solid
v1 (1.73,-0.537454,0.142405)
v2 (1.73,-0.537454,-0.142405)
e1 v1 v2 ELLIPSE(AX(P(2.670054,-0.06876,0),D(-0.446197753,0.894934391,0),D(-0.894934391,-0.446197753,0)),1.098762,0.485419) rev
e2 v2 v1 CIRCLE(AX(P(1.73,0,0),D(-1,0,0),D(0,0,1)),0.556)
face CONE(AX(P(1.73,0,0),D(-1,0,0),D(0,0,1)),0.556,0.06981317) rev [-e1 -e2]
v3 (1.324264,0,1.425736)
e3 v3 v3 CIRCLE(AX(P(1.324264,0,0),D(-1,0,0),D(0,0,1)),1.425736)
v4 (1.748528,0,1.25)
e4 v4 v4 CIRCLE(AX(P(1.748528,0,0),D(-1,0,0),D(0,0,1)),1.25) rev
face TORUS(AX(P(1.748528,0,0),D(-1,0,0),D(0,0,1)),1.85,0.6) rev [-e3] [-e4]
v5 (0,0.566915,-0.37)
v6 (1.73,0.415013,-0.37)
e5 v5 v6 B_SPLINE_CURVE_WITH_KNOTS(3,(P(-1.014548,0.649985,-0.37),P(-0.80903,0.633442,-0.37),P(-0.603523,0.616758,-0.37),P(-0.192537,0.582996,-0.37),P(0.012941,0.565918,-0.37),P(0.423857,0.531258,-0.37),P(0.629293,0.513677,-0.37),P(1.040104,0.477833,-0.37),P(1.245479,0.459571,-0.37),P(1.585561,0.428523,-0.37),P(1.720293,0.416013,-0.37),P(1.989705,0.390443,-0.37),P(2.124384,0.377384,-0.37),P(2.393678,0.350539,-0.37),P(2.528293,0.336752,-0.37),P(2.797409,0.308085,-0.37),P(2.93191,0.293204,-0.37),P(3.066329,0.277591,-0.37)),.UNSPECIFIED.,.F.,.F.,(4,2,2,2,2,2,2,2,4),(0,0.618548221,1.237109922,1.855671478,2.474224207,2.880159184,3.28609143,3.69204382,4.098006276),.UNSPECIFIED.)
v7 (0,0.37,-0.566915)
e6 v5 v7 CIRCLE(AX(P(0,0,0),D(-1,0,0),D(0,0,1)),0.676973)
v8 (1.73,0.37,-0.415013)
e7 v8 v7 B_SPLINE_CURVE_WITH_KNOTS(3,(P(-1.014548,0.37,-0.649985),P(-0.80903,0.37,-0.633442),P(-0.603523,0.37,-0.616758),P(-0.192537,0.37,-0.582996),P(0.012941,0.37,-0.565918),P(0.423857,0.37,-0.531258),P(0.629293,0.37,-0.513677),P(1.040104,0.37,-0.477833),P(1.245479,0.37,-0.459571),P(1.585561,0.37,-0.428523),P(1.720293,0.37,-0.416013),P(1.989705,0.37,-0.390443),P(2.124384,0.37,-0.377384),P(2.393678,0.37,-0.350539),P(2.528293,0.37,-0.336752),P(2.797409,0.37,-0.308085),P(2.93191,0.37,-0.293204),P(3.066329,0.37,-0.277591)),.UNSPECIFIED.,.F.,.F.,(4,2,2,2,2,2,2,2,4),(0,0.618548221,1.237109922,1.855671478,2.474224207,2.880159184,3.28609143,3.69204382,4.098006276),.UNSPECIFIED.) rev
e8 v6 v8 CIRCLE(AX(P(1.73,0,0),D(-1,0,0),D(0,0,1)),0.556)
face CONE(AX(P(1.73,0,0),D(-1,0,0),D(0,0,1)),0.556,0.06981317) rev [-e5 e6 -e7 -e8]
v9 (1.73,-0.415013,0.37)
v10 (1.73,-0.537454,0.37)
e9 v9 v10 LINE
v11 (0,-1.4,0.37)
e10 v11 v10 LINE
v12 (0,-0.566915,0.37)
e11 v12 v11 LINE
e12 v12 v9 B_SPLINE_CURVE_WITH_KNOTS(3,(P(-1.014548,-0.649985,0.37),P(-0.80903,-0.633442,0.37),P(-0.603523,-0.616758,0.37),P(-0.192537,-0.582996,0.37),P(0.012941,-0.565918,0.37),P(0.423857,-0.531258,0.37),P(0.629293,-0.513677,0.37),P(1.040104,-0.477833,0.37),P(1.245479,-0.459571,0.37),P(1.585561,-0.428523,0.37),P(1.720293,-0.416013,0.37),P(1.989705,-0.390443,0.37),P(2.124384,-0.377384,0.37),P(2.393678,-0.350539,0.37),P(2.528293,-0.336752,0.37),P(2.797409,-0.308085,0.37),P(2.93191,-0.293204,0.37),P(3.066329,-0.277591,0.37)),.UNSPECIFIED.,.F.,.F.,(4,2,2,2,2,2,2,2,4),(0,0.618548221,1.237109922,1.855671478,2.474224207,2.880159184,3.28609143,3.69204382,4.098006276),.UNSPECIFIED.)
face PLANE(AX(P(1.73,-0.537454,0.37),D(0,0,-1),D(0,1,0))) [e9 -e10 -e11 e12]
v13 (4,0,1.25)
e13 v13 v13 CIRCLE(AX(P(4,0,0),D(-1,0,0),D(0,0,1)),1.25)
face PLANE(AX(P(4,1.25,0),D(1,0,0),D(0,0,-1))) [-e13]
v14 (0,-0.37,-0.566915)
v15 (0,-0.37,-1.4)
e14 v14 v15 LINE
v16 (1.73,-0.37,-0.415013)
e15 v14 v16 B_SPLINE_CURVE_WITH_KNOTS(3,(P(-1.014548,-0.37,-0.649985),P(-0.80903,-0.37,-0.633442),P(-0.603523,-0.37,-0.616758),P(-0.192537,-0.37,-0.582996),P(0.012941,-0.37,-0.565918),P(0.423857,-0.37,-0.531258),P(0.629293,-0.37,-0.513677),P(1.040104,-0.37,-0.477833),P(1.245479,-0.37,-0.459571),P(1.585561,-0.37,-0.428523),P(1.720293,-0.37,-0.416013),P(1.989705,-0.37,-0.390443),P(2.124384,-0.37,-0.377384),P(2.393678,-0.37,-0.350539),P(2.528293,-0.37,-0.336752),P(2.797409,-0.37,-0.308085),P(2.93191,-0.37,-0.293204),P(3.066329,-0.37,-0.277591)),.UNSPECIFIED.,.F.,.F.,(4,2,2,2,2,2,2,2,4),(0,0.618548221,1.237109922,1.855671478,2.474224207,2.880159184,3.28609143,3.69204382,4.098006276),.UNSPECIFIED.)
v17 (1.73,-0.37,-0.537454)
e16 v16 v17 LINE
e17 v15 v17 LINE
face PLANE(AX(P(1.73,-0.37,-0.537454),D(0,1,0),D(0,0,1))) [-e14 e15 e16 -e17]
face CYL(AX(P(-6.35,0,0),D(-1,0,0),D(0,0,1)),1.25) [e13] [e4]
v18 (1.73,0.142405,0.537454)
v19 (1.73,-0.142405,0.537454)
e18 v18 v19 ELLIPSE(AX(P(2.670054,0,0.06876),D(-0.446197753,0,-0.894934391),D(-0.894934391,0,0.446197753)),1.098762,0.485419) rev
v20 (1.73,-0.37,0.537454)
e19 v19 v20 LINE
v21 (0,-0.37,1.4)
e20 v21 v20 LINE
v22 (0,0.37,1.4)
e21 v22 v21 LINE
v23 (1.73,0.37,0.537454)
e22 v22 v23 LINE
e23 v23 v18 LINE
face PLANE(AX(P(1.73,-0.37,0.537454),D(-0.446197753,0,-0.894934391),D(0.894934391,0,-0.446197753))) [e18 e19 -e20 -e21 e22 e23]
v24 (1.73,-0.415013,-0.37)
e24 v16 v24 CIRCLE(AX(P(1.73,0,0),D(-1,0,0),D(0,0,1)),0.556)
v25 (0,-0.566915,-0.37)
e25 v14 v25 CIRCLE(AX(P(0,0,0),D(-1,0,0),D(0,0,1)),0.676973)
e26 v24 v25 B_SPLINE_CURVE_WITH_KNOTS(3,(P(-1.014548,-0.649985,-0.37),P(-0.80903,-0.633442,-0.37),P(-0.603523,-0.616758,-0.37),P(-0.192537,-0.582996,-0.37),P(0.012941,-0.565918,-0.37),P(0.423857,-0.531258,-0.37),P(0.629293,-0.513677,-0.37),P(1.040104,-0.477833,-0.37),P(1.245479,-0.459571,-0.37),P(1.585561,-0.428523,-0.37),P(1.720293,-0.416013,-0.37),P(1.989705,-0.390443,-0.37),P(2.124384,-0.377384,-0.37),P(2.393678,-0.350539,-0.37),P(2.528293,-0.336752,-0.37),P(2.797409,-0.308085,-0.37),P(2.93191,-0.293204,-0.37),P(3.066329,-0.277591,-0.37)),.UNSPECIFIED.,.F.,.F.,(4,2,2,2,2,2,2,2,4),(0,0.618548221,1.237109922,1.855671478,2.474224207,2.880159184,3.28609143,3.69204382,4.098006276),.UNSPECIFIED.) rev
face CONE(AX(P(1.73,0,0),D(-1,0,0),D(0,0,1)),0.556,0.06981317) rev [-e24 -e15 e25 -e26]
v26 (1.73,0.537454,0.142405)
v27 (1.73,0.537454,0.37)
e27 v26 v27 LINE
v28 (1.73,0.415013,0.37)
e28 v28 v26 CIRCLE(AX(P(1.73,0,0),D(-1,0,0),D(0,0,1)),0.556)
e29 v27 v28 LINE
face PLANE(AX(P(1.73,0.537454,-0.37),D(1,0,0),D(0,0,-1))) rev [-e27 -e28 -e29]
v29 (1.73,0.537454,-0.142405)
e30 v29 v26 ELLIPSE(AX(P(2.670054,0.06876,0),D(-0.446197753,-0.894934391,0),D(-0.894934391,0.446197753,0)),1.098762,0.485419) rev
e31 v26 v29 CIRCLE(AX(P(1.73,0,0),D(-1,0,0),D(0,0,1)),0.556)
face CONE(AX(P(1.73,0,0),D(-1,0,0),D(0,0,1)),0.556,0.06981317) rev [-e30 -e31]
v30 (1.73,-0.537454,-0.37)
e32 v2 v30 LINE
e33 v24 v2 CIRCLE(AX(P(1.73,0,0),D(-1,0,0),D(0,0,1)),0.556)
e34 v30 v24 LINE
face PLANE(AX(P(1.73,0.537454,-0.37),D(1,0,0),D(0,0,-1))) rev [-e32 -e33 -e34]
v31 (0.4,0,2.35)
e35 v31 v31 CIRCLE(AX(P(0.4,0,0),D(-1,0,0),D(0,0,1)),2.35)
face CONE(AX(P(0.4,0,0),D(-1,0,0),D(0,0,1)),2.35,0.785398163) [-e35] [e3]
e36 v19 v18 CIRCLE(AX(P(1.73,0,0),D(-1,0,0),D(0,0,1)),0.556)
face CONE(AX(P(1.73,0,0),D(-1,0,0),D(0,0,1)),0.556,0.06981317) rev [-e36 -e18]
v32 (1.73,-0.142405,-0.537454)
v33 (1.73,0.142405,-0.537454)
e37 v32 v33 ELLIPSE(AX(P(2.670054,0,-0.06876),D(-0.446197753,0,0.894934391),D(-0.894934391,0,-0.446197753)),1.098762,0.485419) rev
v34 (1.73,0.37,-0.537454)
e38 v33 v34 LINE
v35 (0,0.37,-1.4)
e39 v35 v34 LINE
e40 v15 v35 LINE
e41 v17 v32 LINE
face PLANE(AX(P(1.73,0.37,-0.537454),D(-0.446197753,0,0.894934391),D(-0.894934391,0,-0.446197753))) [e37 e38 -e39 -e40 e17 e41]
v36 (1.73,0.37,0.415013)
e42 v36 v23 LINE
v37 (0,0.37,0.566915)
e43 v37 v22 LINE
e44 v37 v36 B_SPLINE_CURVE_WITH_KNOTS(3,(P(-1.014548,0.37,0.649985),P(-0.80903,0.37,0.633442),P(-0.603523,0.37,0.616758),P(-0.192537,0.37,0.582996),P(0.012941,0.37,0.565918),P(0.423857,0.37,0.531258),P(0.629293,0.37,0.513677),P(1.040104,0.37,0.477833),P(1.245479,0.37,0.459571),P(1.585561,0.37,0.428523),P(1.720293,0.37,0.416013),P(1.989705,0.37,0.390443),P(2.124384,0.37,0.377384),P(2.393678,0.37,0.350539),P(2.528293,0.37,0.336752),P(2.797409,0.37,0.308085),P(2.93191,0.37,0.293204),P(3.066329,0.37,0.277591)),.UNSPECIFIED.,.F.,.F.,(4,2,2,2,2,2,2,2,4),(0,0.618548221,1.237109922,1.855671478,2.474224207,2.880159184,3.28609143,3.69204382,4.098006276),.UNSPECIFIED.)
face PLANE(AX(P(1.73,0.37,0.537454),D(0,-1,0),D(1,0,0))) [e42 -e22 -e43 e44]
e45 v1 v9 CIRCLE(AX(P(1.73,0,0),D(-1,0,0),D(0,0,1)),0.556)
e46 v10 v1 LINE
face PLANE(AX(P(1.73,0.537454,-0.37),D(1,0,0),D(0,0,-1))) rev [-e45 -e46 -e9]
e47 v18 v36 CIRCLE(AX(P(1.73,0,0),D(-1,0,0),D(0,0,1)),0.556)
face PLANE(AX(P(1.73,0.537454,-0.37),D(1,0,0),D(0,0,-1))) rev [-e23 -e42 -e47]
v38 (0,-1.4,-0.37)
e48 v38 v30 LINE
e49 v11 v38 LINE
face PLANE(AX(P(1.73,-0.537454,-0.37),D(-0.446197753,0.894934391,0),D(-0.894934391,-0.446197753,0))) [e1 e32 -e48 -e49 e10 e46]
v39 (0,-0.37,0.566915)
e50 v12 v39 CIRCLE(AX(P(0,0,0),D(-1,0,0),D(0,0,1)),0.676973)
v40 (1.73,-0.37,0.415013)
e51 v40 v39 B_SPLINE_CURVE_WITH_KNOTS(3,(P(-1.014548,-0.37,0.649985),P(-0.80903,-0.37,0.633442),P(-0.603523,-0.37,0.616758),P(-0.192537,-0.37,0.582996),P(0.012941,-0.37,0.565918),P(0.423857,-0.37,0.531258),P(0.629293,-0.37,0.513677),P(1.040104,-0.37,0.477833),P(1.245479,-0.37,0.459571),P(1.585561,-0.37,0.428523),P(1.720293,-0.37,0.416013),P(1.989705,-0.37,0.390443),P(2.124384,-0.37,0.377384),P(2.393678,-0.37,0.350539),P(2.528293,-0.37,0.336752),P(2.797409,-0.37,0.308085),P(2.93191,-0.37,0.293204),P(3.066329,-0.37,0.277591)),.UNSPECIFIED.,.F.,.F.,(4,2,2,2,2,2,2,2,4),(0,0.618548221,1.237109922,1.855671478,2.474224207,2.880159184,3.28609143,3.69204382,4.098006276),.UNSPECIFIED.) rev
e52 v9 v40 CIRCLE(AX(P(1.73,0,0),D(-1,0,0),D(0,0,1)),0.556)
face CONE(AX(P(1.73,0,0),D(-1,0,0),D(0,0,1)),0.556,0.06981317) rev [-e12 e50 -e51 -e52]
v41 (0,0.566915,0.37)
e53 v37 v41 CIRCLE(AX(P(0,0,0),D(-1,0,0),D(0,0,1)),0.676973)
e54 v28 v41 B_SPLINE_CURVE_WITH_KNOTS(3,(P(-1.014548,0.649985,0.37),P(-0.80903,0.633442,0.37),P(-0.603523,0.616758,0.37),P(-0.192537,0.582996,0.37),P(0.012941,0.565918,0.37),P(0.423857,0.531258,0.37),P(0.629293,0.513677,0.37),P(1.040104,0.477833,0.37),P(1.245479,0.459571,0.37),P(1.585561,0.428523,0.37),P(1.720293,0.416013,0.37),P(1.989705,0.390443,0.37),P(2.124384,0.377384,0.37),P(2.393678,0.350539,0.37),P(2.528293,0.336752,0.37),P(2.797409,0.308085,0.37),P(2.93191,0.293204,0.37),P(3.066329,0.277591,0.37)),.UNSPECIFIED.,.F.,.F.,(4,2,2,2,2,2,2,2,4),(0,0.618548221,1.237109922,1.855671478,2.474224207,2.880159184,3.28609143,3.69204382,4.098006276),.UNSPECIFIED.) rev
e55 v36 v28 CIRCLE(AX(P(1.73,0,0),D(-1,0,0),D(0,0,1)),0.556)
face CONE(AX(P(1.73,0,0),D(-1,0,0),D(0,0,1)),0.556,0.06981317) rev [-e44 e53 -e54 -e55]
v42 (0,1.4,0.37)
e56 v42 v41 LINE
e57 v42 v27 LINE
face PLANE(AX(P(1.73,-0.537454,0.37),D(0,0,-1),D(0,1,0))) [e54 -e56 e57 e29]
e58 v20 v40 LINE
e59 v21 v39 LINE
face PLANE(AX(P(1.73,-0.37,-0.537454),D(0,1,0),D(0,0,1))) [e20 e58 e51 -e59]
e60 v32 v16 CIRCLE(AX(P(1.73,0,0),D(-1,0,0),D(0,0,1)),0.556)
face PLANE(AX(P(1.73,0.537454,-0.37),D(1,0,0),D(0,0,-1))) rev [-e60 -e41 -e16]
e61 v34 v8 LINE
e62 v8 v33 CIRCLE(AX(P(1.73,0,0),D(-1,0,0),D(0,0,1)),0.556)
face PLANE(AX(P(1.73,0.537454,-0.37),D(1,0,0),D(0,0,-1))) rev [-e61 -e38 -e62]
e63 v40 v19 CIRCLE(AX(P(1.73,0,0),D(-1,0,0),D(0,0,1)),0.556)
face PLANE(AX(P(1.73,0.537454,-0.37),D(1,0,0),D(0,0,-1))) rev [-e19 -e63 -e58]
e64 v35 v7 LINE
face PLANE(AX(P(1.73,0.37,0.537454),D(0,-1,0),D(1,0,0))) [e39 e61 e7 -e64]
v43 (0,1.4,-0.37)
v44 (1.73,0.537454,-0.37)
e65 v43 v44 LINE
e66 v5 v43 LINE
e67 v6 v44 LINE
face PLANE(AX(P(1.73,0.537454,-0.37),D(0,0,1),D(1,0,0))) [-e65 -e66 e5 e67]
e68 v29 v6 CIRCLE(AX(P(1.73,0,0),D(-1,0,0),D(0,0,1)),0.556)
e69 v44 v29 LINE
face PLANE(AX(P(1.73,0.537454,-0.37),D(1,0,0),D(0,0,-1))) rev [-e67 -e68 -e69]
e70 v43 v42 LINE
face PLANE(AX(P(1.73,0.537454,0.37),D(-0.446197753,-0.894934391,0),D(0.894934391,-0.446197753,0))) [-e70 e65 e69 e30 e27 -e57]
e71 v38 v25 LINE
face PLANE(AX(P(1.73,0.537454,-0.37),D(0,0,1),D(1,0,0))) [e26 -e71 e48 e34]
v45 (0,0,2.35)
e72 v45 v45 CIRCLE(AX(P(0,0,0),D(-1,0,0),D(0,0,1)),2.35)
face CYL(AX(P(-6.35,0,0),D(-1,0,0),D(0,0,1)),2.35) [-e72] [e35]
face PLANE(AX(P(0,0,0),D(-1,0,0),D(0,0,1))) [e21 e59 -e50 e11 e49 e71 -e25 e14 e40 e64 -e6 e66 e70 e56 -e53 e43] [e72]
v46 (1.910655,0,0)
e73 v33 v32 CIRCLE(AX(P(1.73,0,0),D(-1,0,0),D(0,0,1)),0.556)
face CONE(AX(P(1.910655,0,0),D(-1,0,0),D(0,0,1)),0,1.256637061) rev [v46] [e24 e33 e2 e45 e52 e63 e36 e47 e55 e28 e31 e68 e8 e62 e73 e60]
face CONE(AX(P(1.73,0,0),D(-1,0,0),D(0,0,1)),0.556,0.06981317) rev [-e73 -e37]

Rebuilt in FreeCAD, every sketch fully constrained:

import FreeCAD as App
import Part
import Sketcher
Q = App.Units.Quantity


def edges_at(feature, points):
    """Names of the edges that pass closest to the given points."""
    edges = feature.Shape.Edges
    near = lambda p: min(range(len(edges)), key=lambda i: edges[i].distToShape(Part.Vertex(*p))[0])
    return sorted({f"Edge{near(p) + 1}" for p in points})

doc = App.newDocument("Part")
params = doc.addObject("Spreadsheet::Sheet", "Params")
for row, (alias, value) in enumerate([
    ("sketch1_width", "4 mm"),
    ("sketch1_width2", "2.5 mm"),
    ("sketch1_width3", "0.4 mm"),
    ("sketch1_height", "2.35 mm"),
    ("revolution_angle", "360 deg"),
    ("fillet_radius", "0.6 mm"),
    ("sketch2_width", "2.8 mm"),
    ("sketch2_height", "0.74 mm"),
    ("sketch3_height", "0.74 mm"),
    ("groove_angle", "360 deg"),
], start=1):
    params.set(f"A{row}", alias)
    params.set(f"B{row}", "=" + value)
    params.setAlias(f"B{row}", alias)

body = doc.addObject("PartDesign::Body", "Body")

sketch1 = body.newObject("Sketcher::SketchObject", "Sketch")
sketch1.AttachmentSupport = (doc.getObject("XY_Plane"), [""])
sketch1.MapMode = "FlatFace"
sketch1.addGeometry([
    Part.LineSegment(App.Vector(0, 2.35, 0), App.Vector(0, 0, 0)),
    Part.LineSegment(App.Vector(0, 0, 0), App.Vector(4, 0, 0)),
    Part.LineSegment(App.Vector(4, 0, 0), App.Vector(4, 1.25, 0)),
    Part.LineSegment(App.Vector(4, 1.25, 0), App.Vector(1.5, 1.25, 0)),
    Part.LineSegment(App.Vector(1.5, 1.25, 0), App.Vector(0.4, 2.35, 0)),
    Part.LineSegment(App.Vector(0.4, 2.35, 0), App.Vector(0, 2.35, 0)),
], False)
sketch1.addConstraint([
    Sketcher.Constraint("Coincident", 0, 2, 1, 1),
    Sketcher.Constraint("Coincident", 1, 2, 2, 1),
    Sketcher.Constraint("Coincident", 2, 2, 3, 1),
    Sketcher.Constraint("Coincident", 3, 2, 4, 1),
    Sketcher.Constraint("Coincident", 4, 2, 5, 1),
    Sketcher.Constraint("Coincident", 5, 2, 0, 1),
    Sketcher.Constraint("Vertical", 0),
    Sketcher.Constraint("Horizontal", 1),
    Sketcher.Constraint("Vertical", 2),
    Sketcher.Constraint("Horizontal", 3),
    Sketcher.Constraint("Horizontal", 5),
    Sketcher.Constraint("Coincident", 0, 2, -1, 1),
    Sketcher.Constraint("DistanceX", 1, 1, 1, 2, Q("4 mm")),
    Sketcher.Constraint("Angle", 4, Q("135 deg")),
    Sketcher.Constraint("DistanceX", 3, 2, 3, 1, Q("2.5 mm")),
    Sketcher.Constraint("DistanceX", 5, 2, 5, 1, Q("0.4 mm")),
    Sketcher.Constraint("DistanceY", 0, 2, 0, 1, Q("2.35 mm")),
])
sketch1.setExpression("Constraints[12]", "Params.sketch1_width")
sketch1.setExpression("Constraints[14]", "Params.sketch1_width2")
sketch1.setExpression("Constraints[15]", "Params.sketch1_width3")
sketch1.setExpression("Constraints[16]", "Params.sketch1_height")
revolution = body.newObject("PartDesign::Revolution", "Revolution")
revolution.Profile = sketch1
revolution.ReferenceAxis = (sketch1, ["H_Axis"])
revolution.setExpression("Angle", "Params.revolution_angle")
doc.recompute()

fillet = body.newObject("PartDesign::Fillet", "Fillet")
fillet.Base = (revolution, edges_at(revolution, [(1.5, 0, -1.25)]))
fillet.setExpression("Radius", "Params.fillet_radius")

sketch2 = body.newObject("Sketcher::SketchObject", "Sketch001")
sketch2.AttachmentSupport = (doc.getObject("YZ_Plane"), [""])
sketch2.MapMode = "FlatFace"
sketch2.addGeometry([
    Part.LineSegment(App.Vector(1.4, 0.4, 0), App.Vector(1.4, -0.4, 0)),
    Part.LineSegment(App.Vector(1.4, -0.4, 0), App.Vector(-1.4, -0.4, 0)),
    Part.LineSegment(App.Vector(-1.4, -0.4, 0), App.Vector(-1.4, 0.4, 0)),
    Part.LineSegment(App.Vector(-1.4, 0.4, 0), App.Vector(1.4, 0.4, 0)),
], False)
sketch2.addConstraint([
    Sketcher.Constraint("Coincident", 0, 2, 1, 1),
    Sketcher.Constraint("Coincident", 1, 2, 2, 1),
    Sketcher.Constraint("Coincident", 2, 2, 3, 1),
    Sketcher.Constraint("Coincident", 3, 2, 0, 1),
    Sketcher.Constraint("Vertical", 0),
    Sketcher.Constraint("Horizontal", 1),
    Sketcher.Constraint("Vertical", 2),
    Sketcher.Constraint("Horizontal", 3),
    Sketcher.Constraint("Symmetric", 0, 2, 2, 2, -1, 1),
    Sketcher.Constraint("DistanceX", 1, 2, 1, 1, Q("2.8 mm")),
    Sketcher.Constraint("DistanceY", 0, 2, 0, 1, Q("0.74 mm")),
])
sketch2.setExpression("Constraints[9]", "Params.sketch2_width")
sketch2.setExpression("Constraints[10]", "Params.sketch2_height")

sketch3 = body.newObject("Sketcher::SketchObject", "Sketch002")
sketch3.AttachmentSupport = (doc.getObject("YZ_Plane"), [""])
sketch3.MapMode = "FlatFace"
sketch3.AttachmentOffset = App.Placement(App.Vector(0, 0, 1.73), App.Rotation())
sketch3.addGeometry([
    Part.LineSegment(App.Vector(0.5, 0.4, 0), App.Vector(0.5, -0.4, 0)),
    Part.LineSegment(App.Vector(0.5, -0.4, 0), App.Vector(-0.5, -0.4, 0)),
    Part.LineSegment(App.Vector(-0.5, -0.4, 0), App.Vector(-0.5, 0.4, 0)),
    Part.LineSegment(App.Vector(-0.5, 0.4, 0), App.Vector(0.5, 0.4, 0)),
], False)
sketch3.addConstraint([
    Sketcher.Constraint("Coincident", 0, 2, 1, 1),
    Sketcher.Constraint("Coincident", 1, 2, 2, 1),
    Sketcher.Constraint("Coincident", 2, 2, 3, 1),
    Sketcher.Constraint("Coincident", 3, 2, 0, 1),
    Sketcher.Constraint("Vertical", 0),
    Sketcher.Constraint("Horizontal", 1),
    Sketcher.Constraint("Vertical", 2),
    Sketcher.Constraint("Horizontal", 3),
    Sketcher.Constraint("Symmetric", 0, 2, 2, 2, -1, 1),
    Sketcher.Constraint("DistanceY", 0, 2, 0, 1, Q("0.74 mm")),
    Sketcher.Constraint("DistanceX", 1, 2, 1, 1, Q("1.074908 mm")),
])
sketch3.setExpression("Constraints[9]", "Params.sketch3_height")

subtractiveloft = body.newObject("PartDesign::SubtractiveLoft", "SubtractiveLoft")
subtractiveloft.Profile = sketch2
subtractiveloft.Sections = [sketch3]
doc.recompute()

polarpattern = body.newObject("PartDesign::PolarPattern", "PolarPattern")
polarpattern.Originals = [subtractiveloft]
polarpattern.Axis = (doc.getObject("X_Axis"), [""])
polarpattern.Angle = 90
polarpattern.Occurrences = 2
body.Tip = polarpattern

sketch4 = body.newObject("Sketcher::SketchObject", "Sketch003")
sketch4.AttachmentSupport = (doc.getObject("XY_Plane"), [""])
sketch4.MapMode = "FlatFace"
sketch4.addGeometry([
    Part.LineSegment(App.Vector(0, 0.7, 0), App.Vector(0, 0, 0)),
    Part.LineSegment(App.Vector(0, 0, 0), App.Vector(1.9, 0, 0)),
    Part.LineSegment(App.Vector(1.9, 0, 0), App.Vector(1.7, 0.6, 0)),
    Part.LineSegment(App.Vector(1.7, 0.6, 0), App.Vector(0, 0.7, 0)),
], False)
sketch4.addConstraint([
    Sketcher.Constraint("Coincident", 0, 2, 1, 1),
    Sketcher.Constraint("Coincident", 1, 2, 2, 1),
    Sketcher.Constraint("Coincident", 2, 2, 3, 1),
    Sketcher.Constraint("Coincident", 3, 2, 0, 1),
    Sketcher.Constraint("Vertical", 0),
    Sketcher.Constraint("Horizontal", 1),
    Sketcher.Constraint("Coincident", 0, 2, -1, 1),
    Sketcher.Constraint("Angle", 2, Q("108 deg")),
    Sketcher.Constraint("Angle", 3, Q("176 deg")),
    Sketcher.Constraint("DistanceX", -1, 1, 2, 2, Q("1.73 mm")),
    Sketcher.Constraint("DistanceY", -1, 1, 2, 2, Q("0.556 mm")),
])
groove = body.newObject("PartDesign::Groove", "Groove")
groove.Profile = sketch4
groove.ReferenceAxis = (sketch4, ["H_Axis"])
groove.setExpression("Angle", "Params.groove_angle")

doc.recompute()
